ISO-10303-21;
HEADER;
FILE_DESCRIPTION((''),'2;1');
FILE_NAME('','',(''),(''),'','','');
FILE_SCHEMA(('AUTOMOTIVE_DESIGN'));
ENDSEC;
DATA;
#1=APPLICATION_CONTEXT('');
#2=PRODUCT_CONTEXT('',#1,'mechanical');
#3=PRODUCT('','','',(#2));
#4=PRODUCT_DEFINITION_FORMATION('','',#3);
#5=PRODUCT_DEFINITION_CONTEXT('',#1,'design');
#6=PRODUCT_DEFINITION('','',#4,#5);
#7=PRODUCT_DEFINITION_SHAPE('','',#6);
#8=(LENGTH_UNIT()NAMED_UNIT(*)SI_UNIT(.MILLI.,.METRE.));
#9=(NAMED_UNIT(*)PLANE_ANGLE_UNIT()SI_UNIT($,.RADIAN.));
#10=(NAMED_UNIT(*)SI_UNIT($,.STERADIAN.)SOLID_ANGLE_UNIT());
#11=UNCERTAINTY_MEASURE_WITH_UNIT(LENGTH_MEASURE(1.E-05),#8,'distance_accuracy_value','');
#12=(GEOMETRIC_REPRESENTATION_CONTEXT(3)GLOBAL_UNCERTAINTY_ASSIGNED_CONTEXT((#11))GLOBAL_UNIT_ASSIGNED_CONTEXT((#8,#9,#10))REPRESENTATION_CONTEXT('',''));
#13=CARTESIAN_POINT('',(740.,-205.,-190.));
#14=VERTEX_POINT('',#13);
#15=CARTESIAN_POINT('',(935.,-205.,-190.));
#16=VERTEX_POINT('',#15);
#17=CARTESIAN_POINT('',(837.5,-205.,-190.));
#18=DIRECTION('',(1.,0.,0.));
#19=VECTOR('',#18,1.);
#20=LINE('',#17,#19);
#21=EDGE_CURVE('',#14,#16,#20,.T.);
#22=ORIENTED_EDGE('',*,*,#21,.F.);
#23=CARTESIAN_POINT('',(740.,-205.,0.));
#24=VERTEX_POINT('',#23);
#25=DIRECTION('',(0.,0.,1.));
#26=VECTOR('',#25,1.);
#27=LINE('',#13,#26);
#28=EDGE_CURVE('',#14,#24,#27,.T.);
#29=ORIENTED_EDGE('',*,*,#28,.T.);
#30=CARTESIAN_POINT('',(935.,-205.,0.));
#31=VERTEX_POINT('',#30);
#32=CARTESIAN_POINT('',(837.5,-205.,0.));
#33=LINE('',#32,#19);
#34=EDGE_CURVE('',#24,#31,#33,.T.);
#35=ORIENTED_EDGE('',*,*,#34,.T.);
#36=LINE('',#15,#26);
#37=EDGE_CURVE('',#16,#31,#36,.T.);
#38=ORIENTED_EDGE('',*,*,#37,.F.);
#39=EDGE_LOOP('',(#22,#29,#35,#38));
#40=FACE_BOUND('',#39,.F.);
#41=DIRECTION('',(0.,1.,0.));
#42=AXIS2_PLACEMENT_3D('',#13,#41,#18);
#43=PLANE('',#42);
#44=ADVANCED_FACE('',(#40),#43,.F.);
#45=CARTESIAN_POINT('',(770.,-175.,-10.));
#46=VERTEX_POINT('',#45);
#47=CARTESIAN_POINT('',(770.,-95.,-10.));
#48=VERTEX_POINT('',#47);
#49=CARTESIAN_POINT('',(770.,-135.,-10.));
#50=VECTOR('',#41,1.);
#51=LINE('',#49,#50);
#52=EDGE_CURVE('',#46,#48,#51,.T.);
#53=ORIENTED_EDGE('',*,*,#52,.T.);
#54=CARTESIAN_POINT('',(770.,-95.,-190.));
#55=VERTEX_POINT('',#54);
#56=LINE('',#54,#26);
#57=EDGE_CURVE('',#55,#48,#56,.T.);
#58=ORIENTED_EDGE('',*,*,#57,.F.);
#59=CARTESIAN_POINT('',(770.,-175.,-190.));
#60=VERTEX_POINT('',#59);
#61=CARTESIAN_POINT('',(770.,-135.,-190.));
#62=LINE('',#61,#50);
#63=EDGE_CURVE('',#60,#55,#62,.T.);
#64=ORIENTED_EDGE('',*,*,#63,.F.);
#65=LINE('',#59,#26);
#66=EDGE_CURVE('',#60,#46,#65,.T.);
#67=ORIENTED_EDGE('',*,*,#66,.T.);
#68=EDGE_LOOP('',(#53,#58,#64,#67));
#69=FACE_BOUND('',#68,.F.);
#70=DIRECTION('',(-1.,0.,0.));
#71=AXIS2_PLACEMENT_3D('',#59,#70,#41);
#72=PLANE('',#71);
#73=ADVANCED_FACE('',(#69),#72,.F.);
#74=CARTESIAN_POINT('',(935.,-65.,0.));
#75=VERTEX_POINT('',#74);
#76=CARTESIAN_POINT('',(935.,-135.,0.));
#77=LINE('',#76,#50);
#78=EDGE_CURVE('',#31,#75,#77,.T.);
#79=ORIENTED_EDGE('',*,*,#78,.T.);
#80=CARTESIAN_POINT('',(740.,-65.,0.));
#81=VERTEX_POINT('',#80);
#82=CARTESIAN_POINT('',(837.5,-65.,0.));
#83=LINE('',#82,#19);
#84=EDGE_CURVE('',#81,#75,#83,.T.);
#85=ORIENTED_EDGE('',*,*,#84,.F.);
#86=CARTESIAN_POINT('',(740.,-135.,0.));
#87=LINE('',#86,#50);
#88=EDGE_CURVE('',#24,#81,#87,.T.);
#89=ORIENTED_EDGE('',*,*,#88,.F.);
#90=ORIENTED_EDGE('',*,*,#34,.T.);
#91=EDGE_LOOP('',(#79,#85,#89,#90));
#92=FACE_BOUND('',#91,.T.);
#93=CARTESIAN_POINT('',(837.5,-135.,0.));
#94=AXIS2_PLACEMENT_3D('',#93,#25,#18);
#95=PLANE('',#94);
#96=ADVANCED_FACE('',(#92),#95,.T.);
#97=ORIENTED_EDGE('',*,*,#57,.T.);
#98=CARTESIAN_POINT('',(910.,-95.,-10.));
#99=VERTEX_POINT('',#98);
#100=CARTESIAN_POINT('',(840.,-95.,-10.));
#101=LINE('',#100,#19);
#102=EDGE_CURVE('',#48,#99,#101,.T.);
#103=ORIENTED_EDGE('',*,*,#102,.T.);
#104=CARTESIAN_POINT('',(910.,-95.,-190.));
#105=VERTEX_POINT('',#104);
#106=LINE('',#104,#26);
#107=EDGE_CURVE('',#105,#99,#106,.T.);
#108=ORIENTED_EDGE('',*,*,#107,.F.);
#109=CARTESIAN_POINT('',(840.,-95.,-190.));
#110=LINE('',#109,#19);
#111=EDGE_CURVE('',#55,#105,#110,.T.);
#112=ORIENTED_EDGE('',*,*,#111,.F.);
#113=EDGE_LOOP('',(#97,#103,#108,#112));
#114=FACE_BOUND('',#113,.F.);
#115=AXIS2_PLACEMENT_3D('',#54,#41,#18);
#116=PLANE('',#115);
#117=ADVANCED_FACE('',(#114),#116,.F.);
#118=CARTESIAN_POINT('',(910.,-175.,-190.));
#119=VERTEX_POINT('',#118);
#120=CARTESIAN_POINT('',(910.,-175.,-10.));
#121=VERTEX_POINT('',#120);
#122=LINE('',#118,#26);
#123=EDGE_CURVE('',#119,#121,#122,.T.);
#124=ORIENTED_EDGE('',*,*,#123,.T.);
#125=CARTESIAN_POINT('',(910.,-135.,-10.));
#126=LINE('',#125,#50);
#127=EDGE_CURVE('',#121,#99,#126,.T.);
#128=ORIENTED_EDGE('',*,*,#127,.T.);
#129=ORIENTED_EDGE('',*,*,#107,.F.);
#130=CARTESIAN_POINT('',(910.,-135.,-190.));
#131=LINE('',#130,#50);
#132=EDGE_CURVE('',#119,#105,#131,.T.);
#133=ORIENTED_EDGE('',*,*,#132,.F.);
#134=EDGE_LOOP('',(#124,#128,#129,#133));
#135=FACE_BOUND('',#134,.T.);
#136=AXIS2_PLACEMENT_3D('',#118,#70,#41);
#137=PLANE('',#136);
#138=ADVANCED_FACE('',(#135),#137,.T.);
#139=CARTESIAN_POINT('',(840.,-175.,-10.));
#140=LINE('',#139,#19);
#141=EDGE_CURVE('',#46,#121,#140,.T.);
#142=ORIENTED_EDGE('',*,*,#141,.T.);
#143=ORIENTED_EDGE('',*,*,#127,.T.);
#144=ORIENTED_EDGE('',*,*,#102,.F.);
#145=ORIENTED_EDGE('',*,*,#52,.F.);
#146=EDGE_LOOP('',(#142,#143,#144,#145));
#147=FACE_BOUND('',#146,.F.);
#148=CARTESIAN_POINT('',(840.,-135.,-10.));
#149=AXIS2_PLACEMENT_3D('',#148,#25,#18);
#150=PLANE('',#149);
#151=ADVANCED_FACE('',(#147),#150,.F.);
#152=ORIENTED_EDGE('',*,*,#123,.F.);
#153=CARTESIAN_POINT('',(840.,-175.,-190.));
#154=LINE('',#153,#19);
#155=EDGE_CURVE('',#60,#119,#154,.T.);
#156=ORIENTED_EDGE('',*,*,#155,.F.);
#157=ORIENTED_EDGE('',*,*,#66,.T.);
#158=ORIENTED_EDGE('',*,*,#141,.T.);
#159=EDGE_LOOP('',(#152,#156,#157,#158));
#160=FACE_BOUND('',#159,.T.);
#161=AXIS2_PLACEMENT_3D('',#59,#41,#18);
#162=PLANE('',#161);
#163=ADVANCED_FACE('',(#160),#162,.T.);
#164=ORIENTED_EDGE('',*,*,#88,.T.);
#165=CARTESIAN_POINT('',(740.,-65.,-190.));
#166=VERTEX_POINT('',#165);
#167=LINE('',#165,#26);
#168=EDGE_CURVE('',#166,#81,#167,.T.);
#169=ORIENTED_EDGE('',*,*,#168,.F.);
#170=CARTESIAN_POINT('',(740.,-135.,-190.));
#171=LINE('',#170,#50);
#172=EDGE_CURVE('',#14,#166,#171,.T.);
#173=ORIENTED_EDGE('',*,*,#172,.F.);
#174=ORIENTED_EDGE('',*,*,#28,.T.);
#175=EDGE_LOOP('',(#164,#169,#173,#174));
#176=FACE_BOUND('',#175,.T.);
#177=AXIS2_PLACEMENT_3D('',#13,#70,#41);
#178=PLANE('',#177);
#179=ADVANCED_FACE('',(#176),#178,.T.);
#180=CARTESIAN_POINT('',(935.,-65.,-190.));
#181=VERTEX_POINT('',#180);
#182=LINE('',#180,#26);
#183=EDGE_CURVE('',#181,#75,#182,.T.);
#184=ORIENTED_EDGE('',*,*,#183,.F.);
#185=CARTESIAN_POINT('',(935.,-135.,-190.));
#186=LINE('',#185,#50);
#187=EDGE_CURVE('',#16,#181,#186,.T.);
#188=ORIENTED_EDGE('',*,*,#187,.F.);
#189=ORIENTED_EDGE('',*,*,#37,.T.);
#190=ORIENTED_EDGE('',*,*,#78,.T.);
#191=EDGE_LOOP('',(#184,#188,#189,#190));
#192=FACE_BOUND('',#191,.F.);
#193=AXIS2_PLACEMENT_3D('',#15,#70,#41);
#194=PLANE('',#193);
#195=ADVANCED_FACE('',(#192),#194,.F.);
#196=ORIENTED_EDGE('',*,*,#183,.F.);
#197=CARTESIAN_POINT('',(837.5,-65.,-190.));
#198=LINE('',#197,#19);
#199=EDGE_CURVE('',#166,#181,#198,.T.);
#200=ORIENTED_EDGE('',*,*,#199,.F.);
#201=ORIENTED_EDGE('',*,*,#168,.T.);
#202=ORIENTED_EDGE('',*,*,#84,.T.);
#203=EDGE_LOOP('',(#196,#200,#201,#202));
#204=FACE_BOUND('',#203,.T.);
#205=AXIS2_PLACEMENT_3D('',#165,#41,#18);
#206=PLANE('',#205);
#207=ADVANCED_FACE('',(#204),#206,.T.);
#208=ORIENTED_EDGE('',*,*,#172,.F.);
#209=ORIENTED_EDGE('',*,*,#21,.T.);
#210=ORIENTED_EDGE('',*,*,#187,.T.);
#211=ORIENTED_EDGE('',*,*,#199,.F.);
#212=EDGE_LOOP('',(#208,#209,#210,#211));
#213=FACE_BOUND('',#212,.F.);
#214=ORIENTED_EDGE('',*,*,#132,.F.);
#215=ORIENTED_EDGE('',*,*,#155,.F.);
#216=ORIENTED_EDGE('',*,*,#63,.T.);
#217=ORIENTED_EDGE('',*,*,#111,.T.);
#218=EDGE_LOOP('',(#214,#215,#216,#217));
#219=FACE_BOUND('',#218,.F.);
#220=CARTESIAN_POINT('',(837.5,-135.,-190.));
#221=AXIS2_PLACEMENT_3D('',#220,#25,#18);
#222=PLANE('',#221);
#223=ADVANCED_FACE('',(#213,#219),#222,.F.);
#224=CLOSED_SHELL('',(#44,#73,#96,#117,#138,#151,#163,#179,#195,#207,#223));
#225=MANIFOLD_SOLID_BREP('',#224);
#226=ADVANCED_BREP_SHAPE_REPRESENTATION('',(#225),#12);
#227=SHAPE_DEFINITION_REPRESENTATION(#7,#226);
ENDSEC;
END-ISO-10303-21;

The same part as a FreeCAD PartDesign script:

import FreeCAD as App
import Part
import Sketcher

doc = App.newDocument("Part")
body = doc.addObject("PartDesign::Body", "Body")

sketch1 = body.newObject("Sketcher::SketchObject", "Sketch")
sketch1.AttachmentSupport = (doc.getObject("XY_Plane"), [""])
sketch1.MapMode = "FlatFace"
sketch1.addGeometry([
    Part.LineSegment(App.Vector(220, 110, 0), App.Vector(220, 30, 0)),
    Part.LineSegment(App.Vector(220, 30, 0), App.Vector(360, 30, 0)),
    Part.LineSegment(App.Vector(360, 30, 0), App.Vector(360, 110, 0)),
    Part.LineSegment(App.Vector(360, 110, 0), App.Vector(220, 110, 0)),
], False)
sketch1.addConstraint([
    Sketcher.Constraint("Coincident", 0, 2, 1, 1),
    Sketcher.Constraint("Coincident", 1, 2, 2, 1),
    Sketcher.Constraint("Coincident", 2, 2, 3, 1),
    Sketcher.Constraint("Coincident", 3, 2, 0, 1),
    Sketcher.Constraint("Vertical", 0),
    Sketcher.Constraint("Horizontal", 1),
    Sketcher.Constraint("Vertical", 2),
    Sketcher.Constraint("Horizontal", 3),
    Sketcher.Constraint("DistanceX", 1, 1, 1, 2, 140.0),
    Sketcher.Constraint("DistanceY", 0, 2, 0, 1, 80.0),
    Sketcher.Constraint("DistanceX", -1, 1, 0, 2, 220.0),
    Sketcher.Constraint("DistanceY", -1, 1, 0, 2, 30.0),
])
pad1 = body.newObject("PartDesign::Pad", "Pad")
pad1.Profile = sketch1
pad1.Length = 190
body2 = doc.addObject("PartDesign::Body", "Body001")
body2.AllowCompound = True

sketch2 = body2.newObject("Sketcher::SketchObject", "Sketch001")
sketch2.AttachmentSupport = (doc.getObject("XY_Plane001"), [""])
sketch2.MapMode = "FlatFace"
sketch2.addGeometry([
    Part.LineSegment(App.Vector(30, 110, 0), App.Vector(30, 30, 0)),
    Part.LineSegment(App.Vector(30, 30, 0), App.Vector(170, 30, 0)),
    Part.LineSegment(App.Vector(170, 30, 0), App.Vector(170, 110, 0)),
    Part.LineSegment(App.Vector(170, 110, 0), App.Vector(30, 110, 0)),
], False)
sketch2.addConstraint([
    Sketcher.Constraint("Coincident", 0, 2, 1, 1),
    Sketcher.Constraint("Coincident", 1, 2, 2, 1),
    Sketcher.Constraint("Coincident", 2, 2, 3, 1),
    Sketcher.Constraint("Coincident", 3, 2, 0, 1),
    Sketcher.Constraint("Vertical", 0),
    Sketcher.Constraint("Horizontal", 1),
    Sketcher.Constraint("Vertical", 2),
    Sketcher.Constraint("Horizontal", 3),
    Sketcher.Constraint("DistanceX", 1, 1, 1, 2, 140.0),
    Sketcher.Constraint("DistanceY", 0, 2, 0, 1, 80.0),
    Sketcher.Constraint("DistanceX", -1, 1, 0, 2, 30.0),
    Sketcher.Constraint("DistanceY", -1, 1, 0, 2, 30.0),
])
pad2 = body2.newObject("PartDesign::Pad", "Pad001")
pad2.Profile = sketch2
pad2.Length = 180
doc.recompute()

boolean = body2.newObject("PartDesign::Boolean", "Boolean")
boolean.Type = "Fuse"
boolean.addObjects([body])
body3 = doc.addObject("PartDesign::Body", "Body002")

sketch3 = body3.newObject("Sketcher::SketchObject", "Sketch002")
sketch3.AttachmentSupport = (doc.getObject("XY_Plane002"), [""])
sketch3.MapMode = "FlatFace"
sketch3.addGeometry([
    Part.LineSegment(App.Vector(0, 140, 0), App.Vector(0, 0, 0)),
    Part.LineSegment(App.Vector(0, 0, 0), App.Vector(195, 0, 0)),
    Part.LineSegment(App.Vector(195, 0, 0), App.Vector(195, 140, 0)),
    Part.LineSegment(App.Vector(195, 140, 0), App.Vector(0, 140, 0)),
], False)
sketch3.addConstraint([
    Sketcher.Constraint("Coincident", 0, 2, 1, 1),
    Sketcher.Constraint("Coincident", 1, 2, 2, 1),
    Sketcher.Constraint("Coincident", 2, 2, 3, 1),
    Sketcher.Constraint("Coincident", 3, 2, 0, 1),
    Sketcher.Constraint("Vertical", 0),
    Sketcher.Constraint("Horizontal", 1),
    Sketcher.Constraint("Vertical", 2),
    Sketcher.Constraint("Horizontal", 3),
    Sketcher.Constraint("Coincident", 0, 2, -1, 1),
    Sketcher.Constraint("DistanceX", 1, 1, 1, 2, 195.0),
    Sketcher.Constraint("DistanceY", 0, 2, 0, 1, 140.0),
])
pad3 = body3.newObject("PartDesign::Pad", "Pad002")
pad3.Profile = sketch3
pad3.Length = 190
doc.recompute()

boolean2 = body3.newObject("PartDesign::Boolean", "Boolean001")
boolean2.Type = "Cut"
boolean2.addObjects([body2])
body4 = doc.addObject("PartDesign::Body", "Body003")
doc.recompute()

body3.Placement = App.Placement(App.Vector(740, -205, -190), App.Rotation(App.Vector(0, 0, 1), 0))
boolean3 = body4.newObject("PartDesign::Boolean", "Boolean002")
boolean3.Type = "Fuse"
boolean3.addObjects([body3])

doc.recompute()
